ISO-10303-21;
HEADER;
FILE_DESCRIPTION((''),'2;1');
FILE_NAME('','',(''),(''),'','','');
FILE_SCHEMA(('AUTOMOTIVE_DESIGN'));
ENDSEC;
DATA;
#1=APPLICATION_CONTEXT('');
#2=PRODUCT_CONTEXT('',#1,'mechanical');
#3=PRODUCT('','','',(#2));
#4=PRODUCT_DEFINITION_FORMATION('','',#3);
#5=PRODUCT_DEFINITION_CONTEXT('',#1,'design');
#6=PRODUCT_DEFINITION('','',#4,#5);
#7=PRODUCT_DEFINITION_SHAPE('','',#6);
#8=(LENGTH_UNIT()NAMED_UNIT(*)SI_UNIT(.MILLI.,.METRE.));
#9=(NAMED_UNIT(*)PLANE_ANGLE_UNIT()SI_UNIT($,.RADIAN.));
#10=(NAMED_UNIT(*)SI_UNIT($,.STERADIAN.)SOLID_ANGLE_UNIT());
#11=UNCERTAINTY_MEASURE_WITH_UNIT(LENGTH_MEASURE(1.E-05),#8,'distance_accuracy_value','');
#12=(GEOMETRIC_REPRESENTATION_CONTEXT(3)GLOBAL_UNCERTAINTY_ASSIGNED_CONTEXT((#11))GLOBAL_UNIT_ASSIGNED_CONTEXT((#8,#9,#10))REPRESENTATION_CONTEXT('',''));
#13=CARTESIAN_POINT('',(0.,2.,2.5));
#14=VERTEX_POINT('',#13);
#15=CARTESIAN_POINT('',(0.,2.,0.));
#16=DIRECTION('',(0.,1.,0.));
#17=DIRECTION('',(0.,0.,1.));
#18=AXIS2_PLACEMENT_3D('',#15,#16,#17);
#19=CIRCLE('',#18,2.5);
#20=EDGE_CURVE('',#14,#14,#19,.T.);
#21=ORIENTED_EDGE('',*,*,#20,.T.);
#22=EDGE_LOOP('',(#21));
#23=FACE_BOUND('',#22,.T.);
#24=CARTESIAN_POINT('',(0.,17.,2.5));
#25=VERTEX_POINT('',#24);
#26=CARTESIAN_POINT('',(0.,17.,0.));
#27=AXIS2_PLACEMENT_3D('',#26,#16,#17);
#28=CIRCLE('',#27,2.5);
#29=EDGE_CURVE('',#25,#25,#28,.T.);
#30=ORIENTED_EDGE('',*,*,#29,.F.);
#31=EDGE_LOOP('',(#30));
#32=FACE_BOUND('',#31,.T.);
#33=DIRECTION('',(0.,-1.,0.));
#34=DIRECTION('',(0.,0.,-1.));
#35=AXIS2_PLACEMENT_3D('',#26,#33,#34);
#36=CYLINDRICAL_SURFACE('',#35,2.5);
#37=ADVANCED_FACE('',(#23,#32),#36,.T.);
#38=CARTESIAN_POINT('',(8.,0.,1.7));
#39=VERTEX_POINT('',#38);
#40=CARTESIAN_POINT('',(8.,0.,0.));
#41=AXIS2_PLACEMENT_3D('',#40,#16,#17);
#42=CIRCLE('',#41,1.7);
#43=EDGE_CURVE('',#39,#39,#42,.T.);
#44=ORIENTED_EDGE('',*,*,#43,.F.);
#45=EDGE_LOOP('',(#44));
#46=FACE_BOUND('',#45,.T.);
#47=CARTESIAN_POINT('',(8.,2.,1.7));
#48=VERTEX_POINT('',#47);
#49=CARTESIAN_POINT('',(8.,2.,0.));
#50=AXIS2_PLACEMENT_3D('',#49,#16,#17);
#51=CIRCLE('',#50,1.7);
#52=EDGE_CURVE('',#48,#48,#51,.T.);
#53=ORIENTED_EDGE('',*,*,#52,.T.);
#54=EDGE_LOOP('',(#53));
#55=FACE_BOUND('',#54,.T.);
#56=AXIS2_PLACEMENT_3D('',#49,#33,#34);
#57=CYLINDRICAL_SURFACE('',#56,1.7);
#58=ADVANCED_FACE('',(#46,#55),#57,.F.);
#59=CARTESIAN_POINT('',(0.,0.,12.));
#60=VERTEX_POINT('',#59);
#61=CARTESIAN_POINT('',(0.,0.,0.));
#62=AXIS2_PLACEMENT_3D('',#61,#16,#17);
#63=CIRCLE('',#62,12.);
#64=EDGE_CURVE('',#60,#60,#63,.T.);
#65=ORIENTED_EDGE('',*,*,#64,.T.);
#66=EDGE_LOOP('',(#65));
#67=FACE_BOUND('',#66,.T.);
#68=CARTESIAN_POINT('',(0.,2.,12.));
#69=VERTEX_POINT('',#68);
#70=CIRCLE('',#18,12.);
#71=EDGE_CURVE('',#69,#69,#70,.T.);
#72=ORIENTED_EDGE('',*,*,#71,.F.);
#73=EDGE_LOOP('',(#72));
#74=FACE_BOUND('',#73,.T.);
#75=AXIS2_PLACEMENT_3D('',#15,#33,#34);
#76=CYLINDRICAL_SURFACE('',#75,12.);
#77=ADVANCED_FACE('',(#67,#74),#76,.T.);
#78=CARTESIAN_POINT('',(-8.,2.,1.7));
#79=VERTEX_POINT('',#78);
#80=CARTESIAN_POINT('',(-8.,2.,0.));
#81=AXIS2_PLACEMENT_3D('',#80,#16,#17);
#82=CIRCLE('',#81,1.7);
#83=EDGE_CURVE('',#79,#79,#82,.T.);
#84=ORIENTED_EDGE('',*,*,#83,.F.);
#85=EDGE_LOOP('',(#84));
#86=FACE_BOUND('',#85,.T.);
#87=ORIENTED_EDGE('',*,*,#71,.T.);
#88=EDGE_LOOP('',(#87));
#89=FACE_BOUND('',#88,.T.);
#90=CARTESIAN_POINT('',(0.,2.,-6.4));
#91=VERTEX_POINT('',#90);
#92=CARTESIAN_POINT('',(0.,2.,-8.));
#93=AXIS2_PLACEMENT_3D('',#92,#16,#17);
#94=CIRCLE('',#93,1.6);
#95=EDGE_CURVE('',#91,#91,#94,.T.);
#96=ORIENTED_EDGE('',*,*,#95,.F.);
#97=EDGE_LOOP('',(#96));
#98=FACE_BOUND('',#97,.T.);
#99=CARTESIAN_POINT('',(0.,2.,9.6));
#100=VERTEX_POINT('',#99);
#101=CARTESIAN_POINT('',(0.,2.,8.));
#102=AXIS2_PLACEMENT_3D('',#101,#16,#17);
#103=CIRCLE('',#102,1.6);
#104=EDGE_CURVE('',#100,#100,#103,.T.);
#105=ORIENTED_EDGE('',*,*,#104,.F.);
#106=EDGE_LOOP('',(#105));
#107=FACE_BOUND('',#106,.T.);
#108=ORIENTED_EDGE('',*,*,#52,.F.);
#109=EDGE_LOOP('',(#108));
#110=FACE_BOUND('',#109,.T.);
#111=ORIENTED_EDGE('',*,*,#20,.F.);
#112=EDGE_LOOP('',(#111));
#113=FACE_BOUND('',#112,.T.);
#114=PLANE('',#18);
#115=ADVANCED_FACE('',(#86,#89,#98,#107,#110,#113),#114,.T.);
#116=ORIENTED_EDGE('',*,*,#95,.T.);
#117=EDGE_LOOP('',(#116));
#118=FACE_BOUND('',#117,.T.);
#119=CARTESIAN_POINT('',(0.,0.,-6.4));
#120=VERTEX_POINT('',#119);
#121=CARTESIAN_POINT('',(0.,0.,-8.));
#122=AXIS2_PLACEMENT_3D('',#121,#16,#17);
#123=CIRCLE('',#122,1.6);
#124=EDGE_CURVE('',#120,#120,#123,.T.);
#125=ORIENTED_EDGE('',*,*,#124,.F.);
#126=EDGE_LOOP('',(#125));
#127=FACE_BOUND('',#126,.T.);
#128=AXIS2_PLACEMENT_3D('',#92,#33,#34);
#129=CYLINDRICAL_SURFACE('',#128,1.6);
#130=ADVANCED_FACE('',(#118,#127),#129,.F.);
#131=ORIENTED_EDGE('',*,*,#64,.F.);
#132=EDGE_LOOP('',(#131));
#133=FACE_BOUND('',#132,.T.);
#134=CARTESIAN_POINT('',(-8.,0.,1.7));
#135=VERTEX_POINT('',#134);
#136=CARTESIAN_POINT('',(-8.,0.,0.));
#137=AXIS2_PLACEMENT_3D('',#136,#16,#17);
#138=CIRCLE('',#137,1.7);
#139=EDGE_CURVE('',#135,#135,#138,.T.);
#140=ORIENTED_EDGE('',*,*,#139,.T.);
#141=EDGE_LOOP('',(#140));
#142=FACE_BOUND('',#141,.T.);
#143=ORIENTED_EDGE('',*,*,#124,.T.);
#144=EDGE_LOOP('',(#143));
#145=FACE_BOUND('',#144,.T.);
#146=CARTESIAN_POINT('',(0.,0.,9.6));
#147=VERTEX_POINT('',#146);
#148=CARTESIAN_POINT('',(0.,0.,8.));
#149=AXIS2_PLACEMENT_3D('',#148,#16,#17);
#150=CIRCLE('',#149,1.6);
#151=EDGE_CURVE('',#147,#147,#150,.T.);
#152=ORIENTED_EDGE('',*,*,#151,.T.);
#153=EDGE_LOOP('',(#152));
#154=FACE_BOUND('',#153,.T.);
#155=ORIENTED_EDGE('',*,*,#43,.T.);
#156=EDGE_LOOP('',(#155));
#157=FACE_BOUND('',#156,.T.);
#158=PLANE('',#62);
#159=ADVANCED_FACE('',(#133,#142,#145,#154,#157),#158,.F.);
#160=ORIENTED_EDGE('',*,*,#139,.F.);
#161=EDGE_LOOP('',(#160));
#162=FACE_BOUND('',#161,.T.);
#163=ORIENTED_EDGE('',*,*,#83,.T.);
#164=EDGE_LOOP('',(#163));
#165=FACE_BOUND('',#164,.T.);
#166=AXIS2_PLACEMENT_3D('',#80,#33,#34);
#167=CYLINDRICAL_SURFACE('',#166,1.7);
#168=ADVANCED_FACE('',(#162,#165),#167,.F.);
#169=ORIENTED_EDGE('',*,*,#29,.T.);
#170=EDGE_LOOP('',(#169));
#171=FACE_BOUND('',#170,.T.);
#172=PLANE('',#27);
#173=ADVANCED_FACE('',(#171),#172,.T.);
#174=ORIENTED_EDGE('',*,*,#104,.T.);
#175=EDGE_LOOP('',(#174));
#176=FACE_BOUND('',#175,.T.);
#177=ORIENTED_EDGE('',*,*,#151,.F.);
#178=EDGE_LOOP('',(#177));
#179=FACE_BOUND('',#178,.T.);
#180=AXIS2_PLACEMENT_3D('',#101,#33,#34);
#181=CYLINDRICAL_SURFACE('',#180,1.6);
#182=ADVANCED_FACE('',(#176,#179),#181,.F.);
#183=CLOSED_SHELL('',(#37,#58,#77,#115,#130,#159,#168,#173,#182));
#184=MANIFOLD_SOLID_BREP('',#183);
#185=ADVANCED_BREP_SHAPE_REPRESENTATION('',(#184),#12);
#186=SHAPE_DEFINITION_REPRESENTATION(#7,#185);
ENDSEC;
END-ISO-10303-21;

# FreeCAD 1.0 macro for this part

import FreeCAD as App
import Part
import Sketcher
Q = App.Units.Quantity

doc = App.newDocument("Part")
body = doc.addObject("PartDesign::Body", "Body")

# Sketch on XZ plane
sketch1 = body.newObject("Sketcher::SketchObject", "Sketch")
sketch1.AttachmentSupport = (doc.getObject("XZ_Plane"), [""])
sketch1.MapMode = "FlatFace"
sketch1.addGeometry([
    Part.Circle(App.Vector(0, 0, 0), App.Vector(0, 0, 1), 12),  # 0
    Part.Circle(App.Vector(0, 8, 0), App.Vector(0, 0, 1), 1.6),  # 1
    Part.Circle(App.Vector(-8, 0, 0), App.Vector(0, 0, 1), 1.7),  # 2
    Part.Circle(App.Vector(8, 0, 0), App.Vector(0, 0, 1), 1.7),  # 3
    Part.Circle(App.Vector(0, -8, 0), App.Vector(0, 0, 1), 1.6),  # 4
], False)
sketch1.addConstraint([
    Sketcher.Constraint("Coincident", 0, 3, -1, 1),
    Sketcher.Constraint("Equal", 2, 3),
    Sketcher.Constraint("Equal", 1, 4),
    Sketcher.Constraint("Symmetric", 2, 3, 3, 3, -1, 1),
    Sketcher.Constraint("Symmetric", 1, 3, 4, 3, -1, 1),
    Sketcher.Constraint("PointOnObject", 1, 3, -2),
    Sketcher.Constraint("PointOnObject", 2, 3, -1),
    Sketcher.Constraint("Diameter", 0, Q("24 mm")),
    Sketcher.Constraint("Diameter", 1, Q("3.2 mm")),
    Sketcher.Constraint("Diameter", 2, Q("3.4 mm")),
    Sketcher.Constraint("DistanceY", -1, 1, 1, 3, Q("8 mm")),
    Sketcher.Constraint("DistanceX", 2, 3, -1, 1, Q("8 mm")),
])
pad1 = body.newObject("PartDesign::Pad", "Pad")
pad1.Profile = sketch1
pad1.Length = 2
pad1.Reversed = True

# Sketch on XZ plane
sketch2 = body.newObject("Sketcher::SketchObject", "Sketch001")
sketch2.AttachmentSupport = (doc.getObject("XZ_Plane"), [""])
sketch2.MapMode = "FlatFace"
sketch2.AttachmentOffset = App.Placement(App.Vector(0, 0, -2), App.Rotation())
sketch2.addGeometry(Part.Circle(App.Vector(0, 0, 0), App.Vector(0, 0, 1), 2.5), False)
sketch2.addConstraint([
    Sketcher.Constraint("Coincident", 0, 3, -1, 1),
    Sketcher.Constraint("Diameter", 0, Q("5 mm")),
])
pad2 = body.newObject("PartDesign::Pad", "Pad001")
pad2.Profile = sketch2
pad2.Length = 15
pad2.Reversed = True

doc.recompute()
